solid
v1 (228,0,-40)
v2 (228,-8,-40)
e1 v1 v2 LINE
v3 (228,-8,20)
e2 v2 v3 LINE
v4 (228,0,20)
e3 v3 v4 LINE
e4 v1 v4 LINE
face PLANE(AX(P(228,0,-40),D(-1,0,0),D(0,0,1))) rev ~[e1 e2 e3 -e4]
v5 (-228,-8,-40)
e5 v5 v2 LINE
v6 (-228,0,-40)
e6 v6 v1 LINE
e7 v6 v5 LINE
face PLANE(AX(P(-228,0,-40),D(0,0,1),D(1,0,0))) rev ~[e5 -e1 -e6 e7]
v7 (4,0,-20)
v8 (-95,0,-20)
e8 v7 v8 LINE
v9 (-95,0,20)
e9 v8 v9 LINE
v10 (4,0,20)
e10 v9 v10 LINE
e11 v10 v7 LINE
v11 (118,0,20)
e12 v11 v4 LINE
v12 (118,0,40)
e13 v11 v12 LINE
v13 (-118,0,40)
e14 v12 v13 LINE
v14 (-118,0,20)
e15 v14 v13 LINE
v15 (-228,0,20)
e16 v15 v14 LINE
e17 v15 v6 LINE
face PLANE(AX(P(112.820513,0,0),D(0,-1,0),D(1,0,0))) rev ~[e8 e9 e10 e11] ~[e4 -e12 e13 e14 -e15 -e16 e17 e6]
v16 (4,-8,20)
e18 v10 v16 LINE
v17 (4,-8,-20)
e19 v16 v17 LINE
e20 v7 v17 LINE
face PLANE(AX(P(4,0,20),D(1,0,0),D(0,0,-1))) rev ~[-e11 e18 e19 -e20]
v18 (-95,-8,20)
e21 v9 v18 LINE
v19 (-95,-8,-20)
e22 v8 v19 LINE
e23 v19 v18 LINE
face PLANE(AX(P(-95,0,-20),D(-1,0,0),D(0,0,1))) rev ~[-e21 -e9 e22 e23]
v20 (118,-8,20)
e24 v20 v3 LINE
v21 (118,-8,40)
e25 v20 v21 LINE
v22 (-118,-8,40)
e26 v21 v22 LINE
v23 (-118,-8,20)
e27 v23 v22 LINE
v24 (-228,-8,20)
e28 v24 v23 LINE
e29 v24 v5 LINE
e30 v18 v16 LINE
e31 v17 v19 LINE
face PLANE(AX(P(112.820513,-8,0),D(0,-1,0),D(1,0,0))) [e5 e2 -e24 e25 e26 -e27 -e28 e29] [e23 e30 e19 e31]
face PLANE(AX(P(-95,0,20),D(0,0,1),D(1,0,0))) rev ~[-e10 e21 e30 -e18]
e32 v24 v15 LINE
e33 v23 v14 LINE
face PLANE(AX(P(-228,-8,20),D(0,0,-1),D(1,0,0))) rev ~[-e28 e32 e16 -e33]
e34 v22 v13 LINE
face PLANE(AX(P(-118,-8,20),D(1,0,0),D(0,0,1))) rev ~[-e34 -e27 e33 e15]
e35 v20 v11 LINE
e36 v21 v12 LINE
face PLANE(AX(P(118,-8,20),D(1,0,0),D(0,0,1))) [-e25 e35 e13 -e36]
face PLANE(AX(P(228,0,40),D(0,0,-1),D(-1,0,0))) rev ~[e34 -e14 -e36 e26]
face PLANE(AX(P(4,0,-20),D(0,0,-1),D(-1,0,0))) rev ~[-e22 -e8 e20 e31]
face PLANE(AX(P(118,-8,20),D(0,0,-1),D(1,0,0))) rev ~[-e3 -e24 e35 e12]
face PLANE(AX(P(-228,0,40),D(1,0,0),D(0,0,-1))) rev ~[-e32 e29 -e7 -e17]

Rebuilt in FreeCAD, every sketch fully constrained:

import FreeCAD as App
import Part
import Sketcher


def add_polygon(sketch, points):
    """Adds a closed chain of lines whose ends are joined by coincident constraints."""
    first, n = sketch.GeometryCount, len(points)
    for a, b in zip(points, points[1:] + points[:1]):
        sketch.addGeometry(Part.LineSegment(App.Vector(*a, 0), App.Vector(*b, 0)), False)
    for i in range(n):
        sketch.addConstraint(Sketcher.Constraint("Coincident", first + i, 2, first + (i + 1) % n, 1))

doc = App.newDocument("Part")
body = doc.addObject("PartDesign::Body", "Body")

# Sketch on XZ plane
sketch1 = body.newObject("Sketcher::SketchObject", "Sketch")
sketch1.AttachmentSupport = (doc.getObject("XZ_Plane"), [""])
sketch1.MapMode = "FlatFace"
add_polygon(sketch1, [(228, 40), (-228, 40), (-228, -40), (228, -40)])  # lines 0-3
add_polygon(sketch1, [(4, 20), (4, -20), (-95, -20), (-95, 20)])  # lines 4-7
sketch1.addConstraint([
    Sketcher.Constraint("Horizontal", 0),
    Sketcher.Constraint("Vertical", 1),
    Sketcher.Constraint("Horizontal", 2),
    Sketcher.Constraint("Vertical", 3),
    Sketcher.Constraint("Vertical", 4),
    Sketcher.Constraint("Horizontal", 5),
    Sketcher.Constraint("Vertical", 6),
    Sketcher.Constraint("Horizontal", 7),
    Sketcher.Constraint("Symmetric", 0, 2, 2, 2, -1, 1),
    Sketcher.Constraint("DistanceX", 0, 2, 0, 1, 456.0),
    Sketcher.Constraint("DistanceX", 5, 2, 5, 1, 99.0),
    Sketcher.Constraint("DistanceY", 1, 2, 1, 1, 80.0),
    Sketcher.Constraint("DistanceY", 4, 2, 4, 1, 40.0),
    Sketcher.Constraint("DistanceX", -1, 1, 4, 2, 4.0),
    Sketcher.Constraint("DistanceY", 4, 2, -1, 1, 20.0),
])
pad1 = body.newObject("PartDesign::Pad", "Pad")
pad1.Profile = sketch1
pad1.Length = 8

# Sketch on XZ plane
sketch2 = body.newObject("Sketcher::SketchObject", "Sketch001")
sketch2.AttachmentSupport = (doc.getObject("XZ_Plane"), [""])
sketch2.MapMode = "FlatFace"
sketch2.AttachmentOffset = App.Placement(App.Vector(0, 0, 8), App.Rotation())
add_polygon(sketch2, [(-228, 40), (-228, 20), (-118, 20), (-118, 40)])  # lines 0-3
add_polygon(sketch2, [(118, 40), (118, 20), (228, 20), (228, 40)])  # lines 4-7
sketch2.addConstraint([
    Sketcher.Constraint("Vertical", 0),
    Sketcher.Constraint("Horizontal", 1),
    Sketcher.Constraint("Vertical", 2),
    Sketcher.Constraint("Horizontal", 3),
    Sketcher.Constraint("Vertical", 4),
    Sketcher.Constraint("Horizontal", 5),
    Sketcher.Constraint("Vertical", 6),
    Sketcher.Constraint("Horizontal", 7),
    Sketcher.Constraint("Symmetric", 1, 2, 4, 2, -2),
    Sketcher.Constraint("Symmetric", 3, 2, 6, 2, -2),
    Sketcher.Constraint("DistanceX", 1, 1, 1, 2, 110.0),
    Sketcher.Constraint("DistanceY", 0, 2, 0, 1, 20.0),
    Sketcher.Constraint("DistanceX", 0, 2, -1, 1, 228.0),
    Sketcher.Constraint("DistanceY", -1, 1, 0, 2, 20.0),
])
pocket1 = body.newObject("PartDesign::Pocket", "Pocket")
pocket1.Profile = sketch2
pocket1.Length = 25

doc.recompute()
